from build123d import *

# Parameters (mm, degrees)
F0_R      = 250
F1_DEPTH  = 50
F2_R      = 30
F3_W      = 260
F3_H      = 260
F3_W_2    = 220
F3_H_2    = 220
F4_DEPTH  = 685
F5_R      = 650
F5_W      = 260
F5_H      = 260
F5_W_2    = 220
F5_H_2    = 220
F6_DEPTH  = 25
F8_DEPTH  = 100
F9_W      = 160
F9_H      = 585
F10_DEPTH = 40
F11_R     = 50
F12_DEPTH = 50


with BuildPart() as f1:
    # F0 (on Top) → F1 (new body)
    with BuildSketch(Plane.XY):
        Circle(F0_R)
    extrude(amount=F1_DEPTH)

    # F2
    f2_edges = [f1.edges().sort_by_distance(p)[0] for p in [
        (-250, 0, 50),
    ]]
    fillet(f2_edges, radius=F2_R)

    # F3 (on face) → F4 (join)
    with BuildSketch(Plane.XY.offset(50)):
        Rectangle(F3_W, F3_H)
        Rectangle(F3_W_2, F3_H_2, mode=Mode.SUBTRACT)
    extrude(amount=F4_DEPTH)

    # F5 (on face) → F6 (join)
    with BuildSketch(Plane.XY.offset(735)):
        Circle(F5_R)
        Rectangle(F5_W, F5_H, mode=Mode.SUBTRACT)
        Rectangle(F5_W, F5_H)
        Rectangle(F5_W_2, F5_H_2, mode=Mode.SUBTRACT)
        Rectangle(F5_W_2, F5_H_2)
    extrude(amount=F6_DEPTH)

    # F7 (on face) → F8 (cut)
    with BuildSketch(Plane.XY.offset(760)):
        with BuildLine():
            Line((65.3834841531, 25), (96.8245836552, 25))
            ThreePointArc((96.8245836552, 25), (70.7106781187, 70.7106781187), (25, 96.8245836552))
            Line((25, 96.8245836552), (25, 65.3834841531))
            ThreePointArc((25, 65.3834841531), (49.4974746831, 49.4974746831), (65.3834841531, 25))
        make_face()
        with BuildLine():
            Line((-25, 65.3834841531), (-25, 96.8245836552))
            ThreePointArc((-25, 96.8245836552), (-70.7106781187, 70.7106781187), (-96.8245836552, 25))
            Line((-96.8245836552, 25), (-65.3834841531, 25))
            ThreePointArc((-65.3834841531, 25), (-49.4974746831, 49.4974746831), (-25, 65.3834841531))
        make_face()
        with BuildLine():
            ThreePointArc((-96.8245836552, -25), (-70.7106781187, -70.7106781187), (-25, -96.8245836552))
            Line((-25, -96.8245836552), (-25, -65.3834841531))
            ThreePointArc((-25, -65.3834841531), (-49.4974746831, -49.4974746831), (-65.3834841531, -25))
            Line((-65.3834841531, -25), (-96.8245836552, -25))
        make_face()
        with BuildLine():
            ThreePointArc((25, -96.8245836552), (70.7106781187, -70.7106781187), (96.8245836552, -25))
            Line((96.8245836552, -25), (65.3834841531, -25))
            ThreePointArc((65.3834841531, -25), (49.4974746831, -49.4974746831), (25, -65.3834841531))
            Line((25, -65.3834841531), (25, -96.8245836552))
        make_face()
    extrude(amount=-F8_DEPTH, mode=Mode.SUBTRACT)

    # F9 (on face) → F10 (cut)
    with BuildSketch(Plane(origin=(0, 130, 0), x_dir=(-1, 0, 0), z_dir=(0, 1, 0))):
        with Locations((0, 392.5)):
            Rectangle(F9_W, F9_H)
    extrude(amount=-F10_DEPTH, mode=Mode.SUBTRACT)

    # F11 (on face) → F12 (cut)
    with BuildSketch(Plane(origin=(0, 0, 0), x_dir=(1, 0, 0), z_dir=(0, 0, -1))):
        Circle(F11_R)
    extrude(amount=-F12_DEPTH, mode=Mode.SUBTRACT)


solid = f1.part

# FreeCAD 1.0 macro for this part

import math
import FreeCAD as App
import Part
import Sketcher
Q = App.Units.Quantity


def edges_at(feature, points):
    """Names of the edges that pass closest to the given points."""
    edges = feature.Shape.Edges
    near = lambda p: min(range(len(edges)), key=lambda i: edges[i].distToShape(Part.Vertex(*p))[0])
    return sorted({f"Edge{near(p) + 1}" for p in points})

doc = App.newDocument("Part")
body = doc.addObject("PartDesign::Body", "Body")

sketch1 = body.newObject("Sketcher::SketchObject", "Sketch")
sketch1.AttachmentSupport = (doc.getObject("XY_Plane"), [""])
sketch1.MapMode = "FlatFace"
sketch1.addGeometry(Part.Circle(App.Vector(0, 0, 0), App.Vector(0, 0, 1), 250), False)
sketch1.addConstraint([
    Sketcher.Constraint("Coincident", 0, 3, -1, 1),
    Sketcher.Constraint("Diameter", 0, Q("500 mm")),
])
pad1 = body.newObject("PartDesign::Pad", "Pad")
pad1.Profile = sketch1
pad1.Length = 50
doc.recompute()

fillet = body.newObject("PartDesign::Fillet", "Fillet")
fillet.Base = (pad1, edges_at(pad1, [(-250, 0, 50)]))
fillet.Radius = 30

sketch2 = body.newObject("Sketcher::SketchObject", "Sketch001")
sketch2.AttachmentSupport = (doc.getObject("XY_Plane"), [""])
sketch2.MapMode = "FlatFace"
sketch2.AttachmentOffset = App.Placement(App.Vector(0, 0, 50), App.Rotation())
sketch2.addGeometry([
    Part.LineSegment(App.Vector(-130, 130, 0), App.Vector(-130, -130, 0)),
    Part.LineSegment(App.Vector(-130, -130, 0), App.Vector(130, -130, 0)),
    Part.LineSegment(App.Vector(130, -130, 0), App.Vector(130, 130, 0)),
    Part.LineSegment(App.Vector(130, 130, 0), App.Vector(-130, 130, 0)),
    Part.LineSegment(App.Vector(110, -110, 0), App.Vector(-110, -110, 0)),
    Part.LineSegment(App.Vector(-110, -110, 0), App.Vector(-110, 110, 0)),
    Part.LineSegment(App.Vector(-110, 110, 0), App.Vector(110, 110, 0)),
    Part.LineSegment(App.Vector(110, 110, 0), App.Vector(110, -110, 0)),
], False)
sketch2.addConstraint([
    Sketcher.Constraint("Coincident", 0, 2, 1, 1),
    Sketcher.Constraint("Coincident", 1, 2, 2, 1),
    Sketcher.Constraint("Coincident", 2, 2, 3, 1),
    Sketcher.Constraint("Coincident", 3, 2, 0, 1),
    Sketcher.Constraint("Coincident", 4, 2, 5, 1),
    Sketcher.Constraint("Coincident", 5, 2, 6, 1),
    Sketcher.Constraint("Coincident", 6, 2, 7, 1),
    Sketcher.Constraint("Coincident", 7, 2, 4, 1),
    Sketcher.Constraint("Vertical", 0),
    Sketcher.Constraint("Horizontal", 1),
    Sketcher.Constraint("Vertical", 2),
    Sketcher.Constraint("Horizontal", 3),
    Sketcher.Constraint("Horizontal", 4),
    Sketcher.Constraint("Vertical", 5),
    Sketcher.Constraint("Horizontal", 6),
    Sketcher.Constraint("Vertical", 7),
    Sketcher.Constraint("Symmetric", 0, 2, 2, 2, -1, 1),
    Sketcher.Constraint("Symmetric", 4, 2, 6, 2, -1, 1),
    Sketcher.Constraint("Equal", 3, 0),
    Sketcher.Constraint("Equal", 6, 5),
    Sketcher.Constraint("DistanceX", 1, 1, 1, 2, Q("260 mm")),
    Sketcher.Constraint("DistanceX", 4, 2, 4, 1, Q("220 mm")),
])
pad2 = body.newObject("PartDesign::Pad", "Pad001")
pad2.Profile = sketch2
pad2.Length = 685

sketch3 = body.newObject("Sketcher::SketchObject", "Sketch002")
sketch3.AttachmentSupport = (doc.getObject("XY_Plane"), [""])
sketch3.MapMode = "FlatFace"
sketch3.AttachmentOffset = App.Placement(App.Vector(0, 0, 735), App.Rotation())
sketch3.addGeometry(Part.Circle(App.Vector(0, 0, 0), App.Vector(0, 0, 1), 650), False)
sketch3.addConstraint([
    Sketcher.Constraint("Coincident", 0, 3, -1, 1),
    Sketcher.Constraint("Diameter", 0, Q("1300 mm")),
])
pad3 = body.newObject("PartDesign::Pad", "Pad002")
pad3.Profile = sketch3
pad3.Length = 25

sketch4 = body.newObject("Sketcher::SketchObject", "Sketch003")
sketch4.AttachmentSupport = (doc.getObject("XY_Plane"), [""])
sketch4.MapMode = "FlatFace"
sketch4.AttachmentOffset = App.Placement(App.Vector(0, 0, 760), App.Rotation())
sketch4.addGeometry([
    Part.LineSegment(App.Vector(65.383484, 25, 0), App.Vector(96.824584, 25, 0)),
    Part.ArcOfCircle(Part.Circle(App.Vector(0, 0, 0), App.Vector(0, 0, 1), 100), math.radians(14.477512), math.radians(75.522488)),
    Part.LineSegment(App.Vector(25, 96.824584, 0), App.Vector(25, 65.383484, 0)),
    Part.ArcOfCircle(Part.Circle(App.Vector(0, 0, 0), App.Vector(0, 0, 1), 70), math.radians(20.924832), math.radians(69.075168)),
    Part.LineSegment(App.Vector(-25, 65.383484, 0), App.Vector(-25, 96.824584, 0)),
    Part.ArcOfCircle(Part.Circle(App.Vector(0, 0, 0), App.Vector(0, 0, 1), 100), math.radians(104.477512), math.radians(165.522488)),
    Part.LineSegment(App.Vector(-96.824584, 25, 0), App.Vector(-65.383484, 25, 0)),
    Part.ArcOfCircle(Part.Circle(App.Vector(0, 0, 0), App.Vector(0, 0, 1), 70), math.radians(110.924832), math.radians(159.075168)),
    Part.ArcOfCircle(Part.Circle(App.Vector(0, 0, 0), App.Vector(0, 0, 1), 100), math.radians(-165.522488), math.radians(-104.477512)),
    Part.LineSegment(App.Vector(-25, -96.824584, 0), App.Vector(-25, -65.383484, 0)),
    Part.ArcOfCircle(Part.Circle(App.Vector(0, 0, 0), App.Vector(0, 0, 1), 70), math.radians(-159.075168), math.radians(-110.924832)),
    Part.LineSegment(App.Vector(-65.383484, -25, 0), App.Vector(-96.824584, -25, 0)),
    Part.ArcOfCircle(Part.Circle(App.Vector(0, 0, 0), App.Vector(0, 0, 1), 100), math.radians(-75.522488), math.radians(-14.477512)),
    Part.LineSegment(App.Vector(96.824584, -25, 0), App.Vector(65.383484, -25, 0)),
    Part.ArcOfCircle(Part.Circle(App.Vector(0, 0, 0), App.Vector(0, 0, 1), 70), math.radians(-69.075168), math.radians(-20.924832)),
    Part.LineSegment(App.Vector(25, -65.383484, 0), App.Vector(25, -96.824584, 0)),
], False)
sketch4.addConstraint([
    Sketcher.Constraint("Coincident", 0, 2, 1, 1),
    Sketcher.Constraint("Coincident", 1, 2, 2, 1),
    Sketcher.Constraint("Coincident", 2, 2, 3, 2),
    Sketcher.Constraint("Coincident", 3, 1, 0, 1),
    Sketcher.Constraint("Coincident", 4, 2, 5, 1),
    Sketcher.Constraint("Coincident", 5, 2, 6, 1),
    Sketcher.Constraint("Coincident", 6, 2, 7, 2),
    Sketcher.Constraint("Coincident", 7, 1, 4, 1),
    Sketcher.Constraint("Coincident", 8, 2, 9, 1),
    Sketcher.Constraint("Coincident", 9, 2, 10, 2),
    Sketcher.Constraint("Coincident", 10, 1, 11, 1),
    Sketcher.Constraint("Coincident", 11, 2, 8, 1),
    Sketcher.Constraint("Coincident", 12, 2, 13, 1),
    Sketcher.Constraint("Coincident", 13, 2, 14, 2),
    Sketcher.Constraint("Coincident", 14, 1, 15, 1),
    Sketcher.Constraint("Coincident", 15, 2, 12, 1),
    Sketcher.Constraint("Horizontal", 0),
    Sketcher.Constraint("Vertical", 2),
    Sketcher.Constraint("Vertical", 4),
    Sketcher.Constraint("Horizontal", 6),
    Sketcher.Constraint("Vertical", 9),
    Sketcher.Constraint("Horizontal", 11),
    Sketcher.Constraint("Horizontal", 13),
    Sketcher.Constraint("Vertical", 15),
    Sketcher.Constraint("Coincident", 1, 3, -1, 1),
    Sketcher.Constraint("Coincident", 3, 3, -1, 1),
    Sketcher.Constraint("Coincident", 5, 3, -1, 1),
    Sketcher.Constraint("Coincident", 7, 3, -1, 1),
    Sketcher.Constraint("Coincident", 8, 3, -1, 1),
    Sketcher.Constraint("Coincident", 10, 3, -1, 1),
    Sketcher.Constraint("Coincident", 12, 3, -1, 1),
    Sketcher.Constraint("Coincident", 14, 3, -1, 1),
    Sketcher.Constraint("Equal", 1, 5),
    Sketcher.Constraint("Equal", 3, 7),
    Sketcher.Constraint("Equal", 5, 8),
    Sketcher.Constraint("Equal", 7, 10),
    Sketcher.Constraint("Equal", 8, 12),
    Sketcher.Constraint("Equal", 10, 14),
    Sketcher.Constraint("Horizontal", 1, 2, 4, 2),
    Sketcher.Constraint("Horizontal", 3, 1, 5, 2),
    Sketcher.Constraint("Horizontal", 11, 2, 12, 2),
    Sketcher.Constraint("Horizontal", 9, 2, 14, 1),
    Sketcher.Constraint("Vertical", 7, 1, 8, 2),
    Sketcher.Constraint("Vertical", 6, 2, 10, 1),
    Sketcher.Constraint("Equal", 13, 2),
    Sketcher.Constraint("Radius", 1, Q("100 mm")),
    Sketcher.Constraint("Radius", 3, Q("70 mm")),
    Sketcher.Constraint("DistanceY", -1, 1, 0, 2, Q("25 mm")),
])
pocket1 = body.newObject("PartDesign::Pocket", "Pocket")
pocket1.Profile = sketch4
pocket1.Length = 100

sketch5 = body.newObject("Sketcher::SketchObject", "Sketch004")
sketch5.AttachmentSupport = (doc.getObject("XZ_Plane"), [""])
sketch5.MapMode = "FlatFace"
sketch5.AttachmentOffset = App.Placement(App.Vector(0, 0, -130), App.Rotation())
sketch5.addGeometry([
    Part.LineSegment(App.Vector(80, 685, 0), App.Vector(80, 100, 0)),
    Part.LineSegment(App.Vector(80, 100, 0), App.Vector(-80, 100, 0)),
    Part.LineSegment(App.Vector(-80, 100, 0), App.Vector(-80, 685, 0)),
    Part.LineSegment(App.Vector(-80, 685, 0), App.Vector(80, 685, 0)),
], False)
sketch5.addConstraint([
    Sketcher.Constraint("Coincident", 0, 2, 1, 1),
    Sketcher.Constraint("Coincident", 1, 2, 2, 1),
    Sketcher.Constraint("Coincident", 2, 2, 3, 1),
    Sketcher.Constraint("Coincident", 3, 2, 0, 1),
    Sketcher.Constraint("Vertical", 0),
    Sketcher.Constraint("Horizontal", 1),
    Sketcher.Constraint("Vertical", 2),
    Sketcher.Constraint("Horizontal", 3),
    Sketcher.Constraint("DistanceX", 1, 2, 1, 1, Q("160 mm")),
    Sketcher.Constraint("DistanceY", 0, 2, 0, 1, Q("585 mm")),
    Sketcher.Constraint("DistanceX", -1, 1, 0, 2, Q("80 mm")),
    Sketcher.Constraint("DistanceY", -1, 1, 0, 2, Q("100 mm")),
])
pocket2 = body.newObject("PartDesign::Pocket", "Pocket001")
pocket2.Profile = sketch5
pocket2.Length = 40
pocket2.Reversed = True

sketch6 = body.newObject("Sketcher::SketchObject", "Sketch005")
sketch6.AttachmentSupport = (doc.getObject("XY_Plane"), [""])
sketch6.MapMode = "FlatFace"
sketch6.addGeometry(Part.Circle(App.Vector(0, 0, 0), App.Vector(0, 0, 1), 50), False)
sketch6.addConstraint([
    Sketcher.Constraint("Coincident", 0, 3, -1, 1),
    Sketcher.Constraint("Diameter", 0, Q("100 mm")),
])
pocket3 = body.newObject("PartDesign::Pocket", "Pocket002")
pocket3.Profile = sketch6
pocket3.Length = 50
pocket3.Reversed = True

doc.recompute()
